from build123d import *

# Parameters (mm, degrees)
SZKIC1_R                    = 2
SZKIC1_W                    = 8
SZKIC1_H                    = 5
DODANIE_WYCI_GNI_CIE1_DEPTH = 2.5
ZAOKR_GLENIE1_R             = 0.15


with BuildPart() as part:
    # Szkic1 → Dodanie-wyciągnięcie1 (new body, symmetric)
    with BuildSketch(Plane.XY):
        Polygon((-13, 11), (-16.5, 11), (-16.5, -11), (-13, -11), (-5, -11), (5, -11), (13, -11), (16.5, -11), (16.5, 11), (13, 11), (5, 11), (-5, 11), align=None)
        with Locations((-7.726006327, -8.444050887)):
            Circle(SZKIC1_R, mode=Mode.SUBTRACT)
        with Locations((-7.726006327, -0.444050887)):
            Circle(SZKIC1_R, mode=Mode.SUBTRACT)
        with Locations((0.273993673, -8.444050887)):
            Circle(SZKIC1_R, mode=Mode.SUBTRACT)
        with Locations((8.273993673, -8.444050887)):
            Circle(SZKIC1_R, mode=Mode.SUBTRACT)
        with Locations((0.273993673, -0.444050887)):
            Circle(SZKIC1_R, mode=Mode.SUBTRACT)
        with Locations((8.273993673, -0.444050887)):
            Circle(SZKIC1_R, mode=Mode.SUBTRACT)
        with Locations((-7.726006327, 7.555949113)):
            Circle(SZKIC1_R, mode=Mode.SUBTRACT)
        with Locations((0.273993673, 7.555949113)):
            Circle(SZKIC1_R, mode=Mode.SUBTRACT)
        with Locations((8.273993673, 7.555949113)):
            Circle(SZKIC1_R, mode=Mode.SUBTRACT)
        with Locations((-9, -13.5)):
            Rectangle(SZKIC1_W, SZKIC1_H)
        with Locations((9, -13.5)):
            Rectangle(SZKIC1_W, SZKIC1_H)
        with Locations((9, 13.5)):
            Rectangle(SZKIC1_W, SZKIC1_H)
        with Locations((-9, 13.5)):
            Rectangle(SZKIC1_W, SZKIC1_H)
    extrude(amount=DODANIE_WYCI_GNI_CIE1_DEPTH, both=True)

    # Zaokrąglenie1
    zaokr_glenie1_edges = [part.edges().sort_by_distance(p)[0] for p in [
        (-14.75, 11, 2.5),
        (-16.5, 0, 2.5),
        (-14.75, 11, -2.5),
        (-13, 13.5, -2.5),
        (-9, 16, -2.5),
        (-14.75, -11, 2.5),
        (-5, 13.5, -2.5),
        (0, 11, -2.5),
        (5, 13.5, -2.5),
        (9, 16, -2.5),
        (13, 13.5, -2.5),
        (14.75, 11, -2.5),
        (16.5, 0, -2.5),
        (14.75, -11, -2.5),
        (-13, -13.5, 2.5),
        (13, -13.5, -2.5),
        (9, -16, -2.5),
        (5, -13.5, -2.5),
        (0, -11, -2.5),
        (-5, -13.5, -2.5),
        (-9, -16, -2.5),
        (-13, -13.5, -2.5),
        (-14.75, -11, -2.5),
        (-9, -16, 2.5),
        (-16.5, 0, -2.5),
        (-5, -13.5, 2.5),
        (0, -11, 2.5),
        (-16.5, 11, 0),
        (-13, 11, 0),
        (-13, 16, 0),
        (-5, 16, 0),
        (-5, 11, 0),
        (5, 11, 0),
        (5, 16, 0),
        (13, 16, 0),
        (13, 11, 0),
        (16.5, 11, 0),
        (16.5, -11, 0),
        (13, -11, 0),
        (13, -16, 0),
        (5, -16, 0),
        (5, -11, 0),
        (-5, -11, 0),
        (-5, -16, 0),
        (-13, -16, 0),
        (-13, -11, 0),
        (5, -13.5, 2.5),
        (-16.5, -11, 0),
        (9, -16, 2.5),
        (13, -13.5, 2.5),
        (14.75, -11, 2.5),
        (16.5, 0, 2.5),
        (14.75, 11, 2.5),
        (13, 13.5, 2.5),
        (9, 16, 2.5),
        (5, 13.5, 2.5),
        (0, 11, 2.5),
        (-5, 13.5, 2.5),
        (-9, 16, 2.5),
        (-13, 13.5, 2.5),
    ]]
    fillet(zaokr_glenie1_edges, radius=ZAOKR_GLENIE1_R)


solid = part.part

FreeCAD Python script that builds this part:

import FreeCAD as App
import Part
import Sketcher


def edges_at(feature, points):
    """Names of the edges that pass closest to the given points."""
    edges = feature.Shape.Edges
    near = lambda p: min(range(len(edges)), key=lambda i: edges[i].distToShape(Part.Vertex(*p))[0])
    return sorted({f"Edge{near(p) + 1}" for p in points})

doc = App.newDocument("Part")
body = doc.addObject("PartDesign::Body", "Body")

# Sketch on XY plane
sketch1 = body.newObject("Sketcher::SketchObject", "Sketch")
sketch1.AttachmentSupport = (doc.getObject("XY_Plane"), [""])
sketch1.MapMode = "FlatFace"
sketch1.addGeometry([
    Part.LineSegment(App.Vector(-16.5, 11, 0), App.Vector(-16.5, -11, 0)),  # 0
    Part.LineSegment(App.Vector(-16.5, -11, 0), App.Vector(-13, -11, 0)),  # 1
    Part.LineSegment(App.Vector(-13, -11, 0), App.Vector(-13, -16, 0)),  # 2
    Part.LineSegment(App.Vector(-13, -16, 0), App.Vector(-5, -16, 0)),  # 3
    Part.LineSegment(App.Vector(-5, -16, 0), App.Vector(-5, -11, 0)),  # 4
    Part.LineSegment(App.Vector(-5, -11, 0), App.Vector(5, -11, 0)),  # 5
    Part.LineSegment(App.Vector(5, -11, 0), App.Vector(5, -16, 0)),  # 6
    Part.LineSegment(App.Vector(5, -16, 0), App.Vector(13, -16, 0)),  # 7
    Part.LineSegment(App.Vector(13, -16, 0), App.Vector(13, -11, 0)),  # 8
    Part.LineSegment(App.Vector(13, -11, 0), App.Vector(16.5, -11, 0)),  # 9
    Part.LineSegment(App.Vector(16.5, -11, 0), App.Vector(16.5, 11, 0)),  # 10
    Part.LineSegment(App.Vector(16.5, 11, 0), App.Vector(13, 11, 0)),  # 11
    Part.LineSegment(App.Vector(13, 11, 0), App.Vector(13, 16, 0)),  # 12
    Part.LineSegment(App.Vector(13, 16, 0), App.Vector(5, 16, 0)),  # 13
    Part.LineSegment(App.Vector(5, 16, 0), App.Vector(5, 11, 0)),  # 14
    Part.LineSegment(App.Vector(5, 11, 0), App.Vector(-5, 11, 0)),  # 15
    Part.LineSegment(App.Vector(-5, 11, 0), App.Vector(-5, 16, 0)),  # 16
    Part.LineSegment(App.Vector(-5, 16, 0), App.Vector(-13, 16, 0)),  # 17
    Part.LineSegment(App.Vector(-13, 16, 0), App.Vector(-13, 11, 0)),  # 18
    Part.LineSegment(App.Vector(-13, 11, 0), App.Vector(-16.5, 11, 0)),  # 19
    Part.Circle(App.Vector(-7.7, -8.4, 0), App.Vector(0, 0, 1), 2),  # 20
    Part.Circle(App.Vector(0.3, -8.4, 0), App.Vector(0, 0, 1), 2),  # 21
    Part.Circle(App.Vector(8.3, -8.4, 0), App.Vector(0, 0, 1), 2),  # 22
    Part.Circle(App.Vector(-7.7, -0.4, 0), App.Vector(0, 0, 1), 2),  # 23
    Part.Circle(App.Vector(-7.7, 7.6, 0), App.Vector(0, 0, 1), 2),  # 24
    Part.Circle(App.Vector(0.3, -0.4, 0), App.Vector(0, 0, 1), 2),  # 25
    Part.Circle(App.Vector(8.3, -0.4, 0), App.Vector(0, 0, 1), 2),  # 26
    Part.Circle(App.Vector(0.3, 7.6, 0), App.Vector(0, 0, 1), 2),  # 27
    Part.Circle(App.Vector(8.3, 7.6, 0), App.Vector(0, 0, 1), 2),  # 28
], False)
sketch1.addConstraint([
    Sketcher.Constraint("Coincident", 0, 2, 1, 1),
    Sketcher.Constraint("Coincident", 1, 2, 2, 1),
    Sketcher.Constraint("Coincident", 2, 2, 3, 1),
    Sketcher.Constraint("Coincident", 3, 2, 4, 1),
    Sketcher.Constraint("Coincident", 4, 2, 5, 1),
    Sketcher.Constraint("Coincident", 5, 2, 6, 1),
    Sketcher.Constraint("Coincident", 6, 2, 7, 1),
    Sketcher.Constraint("Coincident", 7, 2, 8, 1),
    Sketcher.Constraint("Coincident", 8, 2, 9, 1),
    Sketcher.Constraint("Coincident", 9, 2, 10, 1),
    Sketcher.Constraint("Coincident", 10, 2, 11, 1),
    Sketcher.Constraint("Coincident", 11, 2, 12, 1),
    Sketcher.Constraint("Coincident", 12, 2, 13, 1),
    Sketcher.Constraint("Coincident", 13, 2, 14, 1),
    Sketcher.Constraint("Coincident", 14, 2, 15, 1),
    Sketcher.Constraint("Coincident", 15, 2, 16, 1),
    Sketcher.Constraint("Coincident", 16, 2, 17, 1),
    Sketcher.Constraint("Coincident", 17, 2, 18, 1),
    Sketcher.Constraint("Coincident", 18, 2, 19, 1),
    Sketcher.Constraint("Coincident", 19, 2, 0, 1),
    Sketcher.Constraint("Vertical", 0),
    Sketcher.Constraint("Horizontal", 1),
    Sketcher.Constraint("Vertical", 2),
    Sketcher.Constraint("Horizontal", 3),
    Sketcher.Constraint("Vertical", 4),
    Sketcher.Constraint("Horizontal", 5),
    Sketcher.Constraint("Vertical", 6),
    Sketcher.Constraint("Horizontal", 7),
    Sketcher.Constraint("Vertical", 8),
    Sketcher.Constraint("Horizontal", 9),
    Sketcher.Constraint("Vertical", 10),
    Sketcher.Constraint("Horizontal", 11),
    Sketcher.Constraint("Vertical", 12),
    Sketcher.Constraint("Horizontal", 13),
    Sketcher.Constraint("Vertical", 14),
    Sketcher.Constraint("Horizontal", 15),
    Sketcher.Constraint("Vertical", 16),
    Sketcher.Constraint("Horizontal", 17),
    Sketcher.Constraint("Vertical", 18),
    Sketcher.Constraint("Horizontal", 19),
    Sketcher.Constraint("Equal", 20, 21),
    Sketcher.Constraint("Equal", 21, 22),
    Sketcher.Constraint("Equal", 22, 23),
    Sketcher.Constraint("Equal", 23, 24),
    Sketcher.Constraint("Equal", 24, 25),
    Sketcher.Constraint("Equal", 25, 26),
    Sketcher.Constraint("Equal", 26, 27),
    Sketcher.Constraint("Equal", 27, 28),
    Sketcher.Constraint("Symmetric", 0, 2, 10, 2, -1, 1),
    Sketcher.Constraint("Symmetric", 2, 2, 12, 2, -1, 1),
    Sketcher.Constraint("Symmetric", 4, 2, 14, 2, -1, 1),
    Sketcher.Constraint("Symmetric", 6, 2, 16, 2, -1, 1),
    Sketcher.Constraint("Symmetric", 8, 2, 18, 2, -1, 1),
    Sketcher.Constraint("Symmetric", 3, 2, 6, 2, -2),
    Sketcher.Constraint("Symmetric", 1, 2, 8, 2, -2),
    Sketcher.Constraint("Horizontal", 20, 3, 21, 3),
    Sketcher.Constraint("Horizontal", 21, 3, 22, 3),
    Sketcher.Constraint("Horizontal", 23, 3, 25, 3),
    Sketcher.Constraint("Horizontal", 25, 3, 26, 3),
    Sketcher.Constraint("Horizontal", 24, 3, 27, 3),
    Sketcher.Constraint("Horizontal", 27, 3, 28, 3),
    Sketcher.Constraint("Horizontal", 1, 2, 4, 2),
    Sketcher.Constraint("Vertical", 20, 3, 23, 3),
    Sketcher.Constraint("Vertical", 23, 3, 24, 3),
    Sketcher.Constraint("Vertical", 21, 3, 25, 3),
    Sketcher.Constraint("Vertical", 22, 3, 26, 3),
    Sketcher.Constraint("Vertical", 25, 3, 27, 3),
    Sketcher.Constraint("Vertical", 26, 3, 28, 3),
    Sketcher.Constraint("Diameter", 20, 4.0),
    Sketcher.Constraint("DistanceX", 3, 1, 3, 2, 8.0),
    Sketcher.Constraint("DistanceX", 5, 1, 5, 2, 10.0),
    Sketcher.Constraint("DistanceY", 0, 2, 0, 1, 22.0),
    Sketcher.Constraint("DistanceY", 2, 2, 2, 1, 5.0),
    Sketcher.Constraint("DistanceX", 1, 1, 1, 2, 3.5),
    Sketcher.Constraint("DistanceX", 20, 3, 21, 3, 8.0),
    Sketcher.Constraint("DistanceX", 21, 3, 22, 3, 8.0),
    Sketcher.Constraint("DistanceY", 20, 3, 23, 3, 8.0),
    Sketcher.Constraint("DistanceY", 23, 3, 24, 3, 8.0),
    Sketcher.Constraint("DistanceY", 20, 3, -1, 1, 8.444051),
    Sketcher.Constraint("DistanceX", 20, 3, -1, 1, 7.726006),
])
pad1 = body.newObject("PartDesign::Pad", "Pad")
pad1.Profile = sketch1
pad1.Length = 5
pad1.Midplane = True
doc.recompute()

fillet = body.newObject("PartDesign::Fillet", "Fillet")
fillet.Base = (pad1, edges_at(pad1, [
    (-14.75, 11, 2.5),
    (-16.5, 0, 2.5),
    (-14.75, 11, -2.5),
    (-13, 13.5, -2.5),
    (-9, 16, -2.5),
    (-14.75, -11, 2.5),
    (-5, 13.5, -2.5),
    (0, 11, -2.5),
    (5, 13.5, -2.5),
    (9, 16, -2.5),
    (13, 13.5, -2.5),
    (14.75, 11, -2.5),
    (16.5, 0, -2.5),
    (14.75, -11, -2.5),
    (-13, -13.5, 2.5),
    (13, -13.5, -2.5),
    (9, -16, -2.5),
    (5, -13.5, -2.5),
    (0, -11, -2.5),
    (-5, -13.5, -2.5),
    (-9, -16, -2.5),
    (-13, -13.5, -2.5),
    (-14.75, -11, -2.5),
    (-9, -16, 2.5),
    (-16.5, 0, -2.5),
    (-5, -13.5, 2.5),
    (0, -11, 2.5),
    (-16.5, 11, 0),
    (-13, 11, 0),
    (-13, 16, 0),
    (-5, 16, 0),
    (-5, 11, 0),
    (5, 11, 0),
    (5, 16, 0),
    (13, 16, 0),
    (13, 11, 0),
    (16.5, 11, 0),
    (16.5, -11, 0),
    (13, -11, 0),
    (13, -16, 0),
    (5, -16, 0),
    (5, -11, 0),
    (-5, -11, 0),
    (-5, -16, 0),
    (-13, -16, 0),
    (-13, -11, 0),
    (5, -13.5, 2.5),
    (-16.5, -11, 0),
    (9, -16, 2.5),
    (13, -13.5, 2.5),
    (14.75, -11, 2.5),
    (16.5, 0, 2.5),
    (14.75, 11, 2.5),
    (13, 13.5, 2.5),
    (9, 16, 2.5),
    (5, 13.5, 2.5),
    (0, 11, 2.5),
    (-5, 13.5, 2.5),
    (-9, 16, 2.5),
    (-13, 13.5, 2.5),
]))
fillet.Radius = 0.15

doc.recompute()
